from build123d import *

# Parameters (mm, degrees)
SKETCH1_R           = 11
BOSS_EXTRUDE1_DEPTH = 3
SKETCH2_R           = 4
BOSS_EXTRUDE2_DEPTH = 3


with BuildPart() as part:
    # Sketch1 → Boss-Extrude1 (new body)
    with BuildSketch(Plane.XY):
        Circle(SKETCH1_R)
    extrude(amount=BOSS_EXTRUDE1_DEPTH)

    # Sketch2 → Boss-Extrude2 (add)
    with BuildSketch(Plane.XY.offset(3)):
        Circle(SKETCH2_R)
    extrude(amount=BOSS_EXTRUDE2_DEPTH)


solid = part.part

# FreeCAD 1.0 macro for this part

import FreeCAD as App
import Part
import Sketcher
from FreeCAD import Vector
Q = App.Units.Quantity

doc = App.newDocument("Part")
body = doc.addObject("PartDesign::Body", "Body")

# Sketch on XY plane
sketch1 = doc.addObject("Sketcher::SketchObject", "Sketch")
body.addObject(sketch1)
sketch1.AttachmentSupport = (doc.XY_Plane, [""])
sketch1.MapMode = "FlatFace"
sketch1.addGeometry(Part.Circle(Vector(0, 0, 0), Vector(0, 0, 1), 11), False)
sketch1.addConstraint(Sketcher.Constraint("Coincident", 0, 3, -1, 1))
sketch1.addConstraint(Sketcher.Constraint("Diameter", 0, Q("22 mm")))
pad1 = doc.addObject("PartDesign::Pad", "Pad")
body.addObject(pad1)
pad1.Profile = sketch1
pad1.Length = 3

# Sketch on XY plane
sketch2 = doc.addObject("Sketcher::SketchObject", "Sketch001")
body.addObject(sketch2)
sketch2.AttachmentSupport = (doc.XY_Plane, [""])
sketch2.MapMode = "FlatFace"
sketch2.AttachmentOffset = App.Placement(Vector(0, 0, 3), App.Rotation())
sketch2.addGeometry(Part.Circle(Vector(0, 0, 0), Vector(0, 0, 1), 4), False)
sketch2.addConstraint(Sketcher.Constraint("Coincident", 0, 3, -1, 1))
sketch2.addConstraint(Sketcher.Constraint("Diameter", 0, Q("8 mm")))
pad2 = doc.addObject("PartDesign::Pad", "Pad001")
body.addObject(pad2)
pad2.Profile = sketch2
pad2.Length = 3

doc.recompute()
